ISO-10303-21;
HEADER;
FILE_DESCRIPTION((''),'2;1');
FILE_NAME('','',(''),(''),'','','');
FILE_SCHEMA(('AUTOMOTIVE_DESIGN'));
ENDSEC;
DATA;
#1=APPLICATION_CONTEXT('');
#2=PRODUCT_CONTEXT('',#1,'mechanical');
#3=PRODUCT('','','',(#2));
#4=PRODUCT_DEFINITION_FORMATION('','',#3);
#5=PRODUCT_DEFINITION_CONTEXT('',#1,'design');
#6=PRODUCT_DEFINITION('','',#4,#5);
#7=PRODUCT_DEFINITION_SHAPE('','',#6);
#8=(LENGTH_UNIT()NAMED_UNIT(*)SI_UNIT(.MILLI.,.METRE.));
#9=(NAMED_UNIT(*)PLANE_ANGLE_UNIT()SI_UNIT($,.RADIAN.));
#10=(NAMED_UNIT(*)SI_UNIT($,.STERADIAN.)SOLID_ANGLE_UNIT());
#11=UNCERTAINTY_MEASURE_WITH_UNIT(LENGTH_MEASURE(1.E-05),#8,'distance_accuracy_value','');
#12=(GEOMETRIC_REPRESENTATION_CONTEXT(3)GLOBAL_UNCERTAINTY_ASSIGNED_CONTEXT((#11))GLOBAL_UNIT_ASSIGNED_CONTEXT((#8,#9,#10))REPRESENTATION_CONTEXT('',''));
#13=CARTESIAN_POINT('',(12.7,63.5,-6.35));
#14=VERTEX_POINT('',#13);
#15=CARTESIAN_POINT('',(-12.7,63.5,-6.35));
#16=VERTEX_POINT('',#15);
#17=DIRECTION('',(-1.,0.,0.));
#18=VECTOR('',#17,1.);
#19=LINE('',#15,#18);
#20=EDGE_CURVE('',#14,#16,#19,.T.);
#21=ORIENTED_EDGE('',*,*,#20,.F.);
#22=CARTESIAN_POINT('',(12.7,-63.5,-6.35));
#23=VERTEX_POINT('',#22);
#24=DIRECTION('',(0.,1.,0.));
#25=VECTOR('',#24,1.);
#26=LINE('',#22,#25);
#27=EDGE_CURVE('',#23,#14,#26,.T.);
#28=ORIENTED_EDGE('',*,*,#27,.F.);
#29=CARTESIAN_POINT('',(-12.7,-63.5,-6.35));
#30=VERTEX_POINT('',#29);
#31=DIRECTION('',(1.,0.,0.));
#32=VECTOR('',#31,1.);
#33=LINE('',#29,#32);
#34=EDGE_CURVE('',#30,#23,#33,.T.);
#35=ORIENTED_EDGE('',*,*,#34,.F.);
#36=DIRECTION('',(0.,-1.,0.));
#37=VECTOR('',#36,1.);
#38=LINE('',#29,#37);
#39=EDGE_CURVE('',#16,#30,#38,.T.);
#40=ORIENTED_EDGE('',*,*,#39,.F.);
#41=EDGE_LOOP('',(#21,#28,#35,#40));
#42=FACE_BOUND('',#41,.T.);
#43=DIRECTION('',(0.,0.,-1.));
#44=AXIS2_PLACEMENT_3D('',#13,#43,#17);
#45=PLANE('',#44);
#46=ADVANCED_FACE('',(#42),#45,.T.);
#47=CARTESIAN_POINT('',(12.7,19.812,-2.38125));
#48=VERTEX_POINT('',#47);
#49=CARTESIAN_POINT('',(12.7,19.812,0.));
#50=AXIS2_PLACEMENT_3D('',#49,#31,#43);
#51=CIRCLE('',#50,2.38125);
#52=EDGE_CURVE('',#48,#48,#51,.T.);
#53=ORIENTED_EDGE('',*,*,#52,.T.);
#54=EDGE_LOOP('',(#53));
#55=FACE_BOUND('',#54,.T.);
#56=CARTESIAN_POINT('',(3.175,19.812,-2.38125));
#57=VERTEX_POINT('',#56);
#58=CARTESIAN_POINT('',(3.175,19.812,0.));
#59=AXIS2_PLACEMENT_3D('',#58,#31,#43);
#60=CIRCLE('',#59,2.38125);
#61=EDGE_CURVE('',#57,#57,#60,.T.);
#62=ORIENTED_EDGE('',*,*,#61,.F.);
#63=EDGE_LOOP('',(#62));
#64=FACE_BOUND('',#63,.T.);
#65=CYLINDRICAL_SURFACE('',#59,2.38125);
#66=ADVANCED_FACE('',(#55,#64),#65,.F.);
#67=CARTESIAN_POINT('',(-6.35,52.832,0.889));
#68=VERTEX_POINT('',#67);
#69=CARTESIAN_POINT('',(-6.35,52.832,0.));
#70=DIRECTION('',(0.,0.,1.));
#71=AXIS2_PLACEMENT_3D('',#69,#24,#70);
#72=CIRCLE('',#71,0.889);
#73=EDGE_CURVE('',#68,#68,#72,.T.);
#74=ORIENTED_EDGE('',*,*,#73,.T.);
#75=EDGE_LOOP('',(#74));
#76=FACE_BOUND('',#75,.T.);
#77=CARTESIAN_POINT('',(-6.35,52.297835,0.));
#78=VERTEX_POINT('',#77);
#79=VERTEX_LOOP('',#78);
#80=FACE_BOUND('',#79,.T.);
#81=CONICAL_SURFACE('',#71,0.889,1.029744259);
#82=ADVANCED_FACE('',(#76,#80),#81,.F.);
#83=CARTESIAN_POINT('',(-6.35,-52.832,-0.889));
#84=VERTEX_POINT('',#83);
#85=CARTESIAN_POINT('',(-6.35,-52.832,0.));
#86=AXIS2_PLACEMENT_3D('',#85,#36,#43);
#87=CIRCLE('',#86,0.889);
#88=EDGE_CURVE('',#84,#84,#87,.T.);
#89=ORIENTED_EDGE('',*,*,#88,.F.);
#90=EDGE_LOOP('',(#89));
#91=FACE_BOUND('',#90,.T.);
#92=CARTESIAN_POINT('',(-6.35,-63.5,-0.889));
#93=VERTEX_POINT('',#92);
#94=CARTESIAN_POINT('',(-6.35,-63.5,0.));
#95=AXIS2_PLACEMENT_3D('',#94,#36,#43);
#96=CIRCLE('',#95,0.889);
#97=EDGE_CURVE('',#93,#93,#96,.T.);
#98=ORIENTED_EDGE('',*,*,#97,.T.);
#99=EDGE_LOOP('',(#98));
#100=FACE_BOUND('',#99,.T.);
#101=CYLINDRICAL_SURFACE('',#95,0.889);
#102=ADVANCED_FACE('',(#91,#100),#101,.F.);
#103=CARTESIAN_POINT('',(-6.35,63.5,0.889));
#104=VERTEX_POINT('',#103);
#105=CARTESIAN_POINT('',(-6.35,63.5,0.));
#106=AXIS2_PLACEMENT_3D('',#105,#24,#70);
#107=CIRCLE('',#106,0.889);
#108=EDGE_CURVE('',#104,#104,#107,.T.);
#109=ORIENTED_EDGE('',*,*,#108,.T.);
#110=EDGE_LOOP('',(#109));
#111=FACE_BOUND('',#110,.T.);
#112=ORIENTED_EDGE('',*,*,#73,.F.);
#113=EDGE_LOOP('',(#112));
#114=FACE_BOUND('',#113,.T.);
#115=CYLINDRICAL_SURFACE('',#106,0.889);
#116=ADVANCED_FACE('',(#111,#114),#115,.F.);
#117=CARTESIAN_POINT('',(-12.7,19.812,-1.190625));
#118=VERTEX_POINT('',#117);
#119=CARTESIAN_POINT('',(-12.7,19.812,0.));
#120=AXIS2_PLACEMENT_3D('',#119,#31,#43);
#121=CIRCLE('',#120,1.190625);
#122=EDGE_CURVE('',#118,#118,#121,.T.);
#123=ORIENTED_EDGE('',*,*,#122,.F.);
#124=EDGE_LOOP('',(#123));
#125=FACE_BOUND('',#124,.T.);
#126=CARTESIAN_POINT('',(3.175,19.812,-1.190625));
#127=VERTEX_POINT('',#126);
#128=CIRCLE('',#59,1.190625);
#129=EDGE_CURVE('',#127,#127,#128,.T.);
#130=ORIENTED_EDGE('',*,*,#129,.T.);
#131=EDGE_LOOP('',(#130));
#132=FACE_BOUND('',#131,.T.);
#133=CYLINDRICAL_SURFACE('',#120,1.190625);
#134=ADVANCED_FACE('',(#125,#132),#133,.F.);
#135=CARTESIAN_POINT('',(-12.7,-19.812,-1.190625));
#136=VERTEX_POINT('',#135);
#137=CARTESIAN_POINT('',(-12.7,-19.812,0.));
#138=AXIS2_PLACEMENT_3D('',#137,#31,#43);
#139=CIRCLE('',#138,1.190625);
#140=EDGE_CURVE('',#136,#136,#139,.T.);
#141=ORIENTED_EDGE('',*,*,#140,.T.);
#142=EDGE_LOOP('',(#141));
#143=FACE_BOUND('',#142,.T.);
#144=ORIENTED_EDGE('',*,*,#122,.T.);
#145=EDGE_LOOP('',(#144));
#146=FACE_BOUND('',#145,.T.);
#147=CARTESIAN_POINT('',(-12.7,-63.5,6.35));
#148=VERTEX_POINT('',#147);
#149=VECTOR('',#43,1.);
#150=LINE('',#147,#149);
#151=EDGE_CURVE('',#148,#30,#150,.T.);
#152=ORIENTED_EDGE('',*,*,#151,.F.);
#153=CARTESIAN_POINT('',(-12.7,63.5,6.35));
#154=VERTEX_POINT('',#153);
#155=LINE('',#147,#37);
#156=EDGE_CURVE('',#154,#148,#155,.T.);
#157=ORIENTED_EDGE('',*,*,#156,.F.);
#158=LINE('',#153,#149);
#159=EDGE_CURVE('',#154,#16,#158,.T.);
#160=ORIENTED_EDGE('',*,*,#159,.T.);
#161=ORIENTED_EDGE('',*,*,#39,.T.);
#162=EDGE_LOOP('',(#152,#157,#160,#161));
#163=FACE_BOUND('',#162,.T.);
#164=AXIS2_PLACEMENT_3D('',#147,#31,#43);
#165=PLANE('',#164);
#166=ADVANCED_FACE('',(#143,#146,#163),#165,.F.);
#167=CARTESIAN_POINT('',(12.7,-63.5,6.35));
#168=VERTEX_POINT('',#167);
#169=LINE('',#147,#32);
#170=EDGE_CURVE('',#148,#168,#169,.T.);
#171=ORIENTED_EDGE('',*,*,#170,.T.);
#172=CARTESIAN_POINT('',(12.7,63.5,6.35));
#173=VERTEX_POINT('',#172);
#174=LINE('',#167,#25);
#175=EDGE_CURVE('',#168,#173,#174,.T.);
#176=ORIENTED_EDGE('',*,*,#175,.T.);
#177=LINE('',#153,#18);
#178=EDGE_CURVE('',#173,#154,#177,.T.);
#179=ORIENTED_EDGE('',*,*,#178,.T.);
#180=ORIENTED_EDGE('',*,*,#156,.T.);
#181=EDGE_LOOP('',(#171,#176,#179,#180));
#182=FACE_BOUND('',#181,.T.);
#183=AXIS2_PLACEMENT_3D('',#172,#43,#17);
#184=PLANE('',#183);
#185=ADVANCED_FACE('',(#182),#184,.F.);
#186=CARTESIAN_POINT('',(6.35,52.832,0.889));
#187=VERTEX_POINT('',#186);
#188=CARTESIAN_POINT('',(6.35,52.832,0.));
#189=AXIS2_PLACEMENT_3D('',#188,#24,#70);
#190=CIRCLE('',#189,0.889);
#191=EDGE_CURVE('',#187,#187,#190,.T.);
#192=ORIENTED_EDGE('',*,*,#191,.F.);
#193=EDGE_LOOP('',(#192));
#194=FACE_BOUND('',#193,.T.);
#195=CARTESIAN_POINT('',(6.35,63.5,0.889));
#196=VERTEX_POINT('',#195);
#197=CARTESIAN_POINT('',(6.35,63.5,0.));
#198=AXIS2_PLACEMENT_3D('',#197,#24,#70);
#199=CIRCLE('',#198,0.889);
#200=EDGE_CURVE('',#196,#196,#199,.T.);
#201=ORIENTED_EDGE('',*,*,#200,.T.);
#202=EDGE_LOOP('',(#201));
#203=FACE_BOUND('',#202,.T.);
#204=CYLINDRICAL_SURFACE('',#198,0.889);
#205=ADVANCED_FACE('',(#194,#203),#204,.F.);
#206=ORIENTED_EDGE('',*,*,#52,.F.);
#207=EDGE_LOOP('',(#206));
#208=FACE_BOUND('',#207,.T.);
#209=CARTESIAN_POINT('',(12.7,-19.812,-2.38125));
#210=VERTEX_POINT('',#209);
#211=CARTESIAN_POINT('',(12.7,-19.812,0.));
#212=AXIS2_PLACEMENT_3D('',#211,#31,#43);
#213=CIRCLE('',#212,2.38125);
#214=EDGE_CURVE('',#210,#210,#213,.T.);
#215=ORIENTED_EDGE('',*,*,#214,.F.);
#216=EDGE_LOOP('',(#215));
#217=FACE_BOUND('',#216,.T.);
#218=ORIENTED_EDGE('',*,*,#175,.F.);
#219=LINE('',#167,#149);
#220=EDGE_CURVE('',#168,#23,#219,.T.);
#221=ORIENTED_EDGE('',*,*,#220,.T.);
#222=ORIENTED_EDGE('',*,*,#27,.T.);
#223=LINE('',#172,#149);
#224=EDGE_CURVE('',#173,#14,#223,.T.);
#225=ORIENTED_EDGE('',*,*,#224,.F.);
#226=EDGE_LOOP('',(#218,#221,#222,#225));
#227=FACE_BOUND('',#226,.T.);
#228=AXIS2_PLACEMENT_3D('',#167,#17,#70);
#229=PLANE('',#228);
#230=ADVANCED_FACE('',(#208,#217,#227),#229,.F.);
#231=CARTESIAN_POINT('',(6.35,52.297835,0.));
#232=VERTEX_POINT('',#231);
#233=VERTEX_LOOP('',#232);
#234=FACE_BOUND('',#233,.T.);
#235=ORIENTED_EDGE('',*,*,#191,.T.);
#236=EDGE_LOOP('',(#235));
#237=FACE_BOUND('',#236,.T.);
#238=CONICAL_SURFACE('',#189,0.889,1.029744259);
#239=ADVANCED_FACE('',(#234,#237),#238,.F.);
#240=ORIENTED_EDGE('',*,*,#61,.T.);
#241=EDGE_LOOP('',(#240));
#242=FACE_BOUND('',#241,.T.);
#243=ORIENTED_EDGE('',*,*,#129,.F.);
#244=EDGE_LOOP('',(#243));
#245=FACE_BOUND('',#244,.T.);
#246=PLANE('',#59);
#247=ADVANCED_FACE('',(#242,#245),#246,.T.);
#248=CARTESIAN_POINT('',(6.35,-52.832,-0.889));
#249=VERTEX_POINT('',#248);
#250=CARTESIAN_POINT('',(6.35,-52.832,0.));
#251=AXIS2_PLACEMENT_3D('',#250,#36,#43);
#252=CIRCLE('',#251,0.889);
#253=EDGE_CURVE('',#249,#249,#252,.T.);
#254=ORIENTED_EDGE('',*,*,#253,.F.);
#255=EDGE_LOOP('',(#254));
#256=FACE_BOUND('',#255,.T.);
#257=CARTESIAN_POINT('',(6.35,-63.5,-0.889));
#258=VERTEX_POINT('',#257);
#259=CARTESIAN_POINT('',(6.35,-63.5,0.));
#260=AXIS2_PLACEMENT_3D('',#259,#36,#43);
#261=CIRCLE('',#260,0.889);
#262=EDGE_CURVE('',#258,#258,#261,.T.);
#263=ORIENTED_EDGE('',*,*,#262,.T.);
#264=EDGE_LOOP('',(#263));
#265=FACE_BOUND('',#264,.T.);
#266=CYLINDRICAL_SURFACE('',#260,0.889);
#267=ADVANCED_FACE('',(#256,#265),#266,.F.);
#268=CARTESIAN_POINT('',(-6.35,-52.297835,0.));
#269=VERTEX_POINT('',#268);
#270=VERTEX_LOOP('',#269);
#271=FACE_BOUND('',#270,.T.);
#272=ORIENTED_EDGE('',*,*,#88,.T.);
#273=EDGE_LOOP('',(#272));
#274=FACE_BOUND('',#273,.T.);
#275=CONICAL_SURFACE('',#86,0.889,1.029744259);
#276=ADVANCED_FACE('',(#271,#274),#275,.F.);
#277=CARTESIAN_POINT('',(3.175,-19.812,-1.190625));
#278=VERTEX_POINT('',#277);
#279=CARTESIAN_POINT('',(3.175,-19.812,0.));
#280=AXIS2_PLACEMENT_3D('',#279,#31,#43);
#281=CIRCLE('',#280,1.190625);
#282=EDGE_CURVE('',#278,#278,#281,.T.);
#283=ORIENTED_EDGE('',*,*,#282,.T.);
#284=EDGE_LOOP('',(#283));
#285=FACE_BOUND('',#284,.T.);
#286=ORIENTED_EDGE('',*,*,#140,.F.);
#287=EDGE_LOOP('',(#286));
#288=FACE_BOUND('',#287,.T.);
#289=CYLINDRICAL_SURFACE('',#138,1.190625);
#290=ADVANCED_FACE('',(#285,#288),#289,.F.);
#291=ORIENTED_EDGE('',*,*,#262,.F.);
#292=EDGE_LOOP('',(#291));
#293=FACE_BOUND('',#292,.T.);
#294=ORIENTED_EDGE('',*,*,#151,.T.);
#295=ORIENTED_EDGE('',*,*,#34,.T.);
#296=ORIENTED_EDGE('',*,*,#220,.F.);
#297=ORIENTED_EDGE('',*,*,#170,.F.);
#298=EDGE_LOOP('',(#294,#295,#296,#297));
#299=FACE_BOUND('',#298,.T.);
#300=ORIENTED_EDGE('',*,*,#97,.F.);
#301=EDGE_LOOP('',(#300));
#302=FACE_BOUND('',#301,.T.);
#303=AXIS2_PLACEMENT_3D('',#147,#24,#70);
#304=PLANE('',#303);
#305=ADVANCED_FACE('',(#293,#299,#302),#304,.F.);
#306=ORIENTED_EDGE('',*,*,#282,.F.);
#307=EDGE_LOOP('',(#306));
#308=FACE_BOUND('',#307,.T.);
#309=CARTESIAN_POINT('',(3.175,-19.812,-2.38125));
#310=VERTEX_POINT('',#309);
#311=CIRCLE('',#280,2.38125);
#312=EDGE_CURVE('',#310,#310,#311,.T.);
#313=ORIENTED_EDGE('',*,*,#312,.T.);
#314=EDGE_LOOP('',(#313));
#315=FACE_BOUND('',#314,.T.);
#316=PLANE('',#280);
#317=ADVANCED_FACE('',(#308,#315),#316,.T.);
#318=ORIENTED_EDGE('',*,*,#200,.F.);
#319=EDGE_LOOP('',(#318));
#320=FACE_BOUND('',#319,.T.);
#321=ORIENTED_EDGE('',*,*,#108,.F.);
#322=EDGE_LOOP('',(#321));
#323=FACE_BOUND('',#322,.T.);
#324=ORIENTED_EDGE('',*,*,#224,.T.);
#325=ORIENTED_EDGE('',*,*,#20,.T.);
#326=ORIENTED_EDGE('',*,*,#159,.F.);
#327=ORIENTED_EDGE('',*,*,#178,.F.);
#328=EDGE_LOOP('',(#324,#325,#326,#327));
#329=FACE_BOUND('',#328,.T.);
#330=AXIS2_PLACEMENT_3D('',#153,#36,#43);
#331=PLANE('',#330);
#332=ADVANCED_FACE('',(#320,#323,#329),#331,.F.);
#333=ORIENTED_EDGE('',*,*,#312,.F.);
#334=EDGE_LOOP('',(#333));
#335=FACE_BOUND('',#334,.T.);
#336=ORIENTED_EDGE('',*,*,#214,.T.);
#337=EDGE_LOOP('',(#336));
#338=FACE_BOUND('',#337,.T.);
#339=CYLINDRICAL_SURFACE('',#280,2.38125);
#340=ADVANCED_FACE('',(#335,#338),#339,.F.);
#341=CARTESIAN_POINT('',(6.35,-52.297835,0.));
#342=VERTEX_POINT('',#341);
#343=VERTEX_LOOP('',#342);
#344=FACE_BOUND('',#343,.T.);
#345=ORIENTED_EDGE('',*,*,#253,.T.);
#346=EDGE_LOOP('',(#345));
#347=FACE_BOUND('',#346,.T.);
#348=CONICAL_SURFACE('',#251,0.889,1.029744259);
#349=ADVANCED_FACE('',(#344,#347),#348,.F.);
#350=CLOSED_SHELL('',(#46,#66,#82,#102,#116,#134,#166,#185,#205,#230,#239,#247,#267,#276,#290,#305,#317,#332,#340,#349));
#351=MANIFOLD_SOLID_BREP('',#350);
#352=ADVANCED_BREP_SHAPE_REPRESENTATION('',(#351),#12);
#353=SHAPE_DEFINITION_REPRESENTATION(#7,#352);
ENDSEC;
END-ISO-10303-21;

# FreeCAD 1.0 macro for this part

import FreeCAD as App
import Part
import Sketcher
Q = App.Units.Quantity

doc = App.newDocument("Part")
body = doc.addObject("PartDesign::Body", "Body")

# Sketch on XY plane
sketch1 = body.newObject("Sketcher::SketchObject", "Sketch")
sketch1.AttachmentSupport = (doc.getObject("XY_Plane"), [""])
sketch1.MapMode = "FlatFace"
sketch1.addGeometry([
    Part.LineSegment(App.Vector(-13, 64, 0), App.Vector(-13, -64, 0)),
    Part.LineSegment(App.Vector(-13, -64, 0), App.Vector(13, -64, 0)),
    Part.LineSegment(App.Vector(13, -64, 0), App.Vector(13, 64, 0)),
    Part.LineSegment(App.Vector(13, 64, 0), App.Vector(-13, 64, 0)),
], False)
sketch1.addConstraint([
    Sketcher.Constraint("Coincident", 0, 2, 1, 1),
    Sketcher.Constraint("Coincident", 1, 2, 2, 1),
    Sketcher.Constraint("Coincident", 2, 2, 3, 1),
    Sketcher.Constraint("Coincident", 3, 2, 0, 1),
    Sketcher.Constraint("Vertical", 0),
    Sketcher.Constraint("Horizontal", 1),
    Sketcher.Constraint("Vertical", 2),
    Sketcher.Constraint("Horizontal", 3),
    Sketcher.Constraint("Symmetric", 0, 2, 2, 2, -1, 1),
    Sketcher.Constraint("DistanceX", 1, 1, 1, 2, Q("1 in")),
    Sketcher.Constraint("DistanceY", 0, 2, 0, 1, Q("5 in")),
])
pad1 = body.newObject("PartDesign::Pad", "Pad")
pad1.Profile = sketch1
pad1.Length = Q("0.5 in")
pad1.Midplane = True

# Sketch on YZ plane
sketch2 = body.newObject("Sketcher::SketchObject", "Sketch001")
sketch2.AttachmentSupport = (doc.getObject("YZ_Plane"), [""])
sketch2.MapMode = "FlatFace"
sketch2.AttachmentOffset = App.Placement(App.Vector(0, 0, 0.5 * 25.4), App.Rotation())
sketch2.addGeometry([
    Part.Circle(App.Vector(19.8, 0, 0), App.Vector(0, 0, 1), 1.2),
    Part.Circle(App.Vector(-19.8, 0, 0), App.Vector(0, 0, 1), 1.2),
], False)
sketch2.addConstraint([
    Sketcher.Constraint("Equal", 0, 1),
    Sketcher.Constraint("Symmetric", 0, 3, 1, 3, -1, 1),
    Sketcher.Constraint("PointOnObject", 0, 3, -1),
    Sketcher.Constraint("Diameter", 0, Q("0.09375 in")),
    Sketcher.Constraint("DistanceX", -1, 1, 0, 3, Q("0.78 in")),
])
pocket1 = body.newObject("PartDesign::Pocket", "Pocket")
pocket1.Profile = sketch2
pocket1.Type = "ThroughAll"

# Sketch on YZ plane
sketch3 = body.newObject("Sketcher::SketchObject", "Sketch002")
sketch3.AttachmentSupport = (doc.getObject("YZ_Plane"), [""])
sketch3.MapMode = "FlatFace"
sketch3.AttachmentOffset = App.Placement(App.Vector(0, 0, 0.5 * 25.4), App.Rotation())
sketch3.addGeometry([
    Part.Circle(App.Vector(19.8, 0, 0), App.Vector(0, 0, 1), 2.4),
    Part.Circle(App.Vector(19.8, 0, 0), App.Vector(0, 0, 1), 1.2),
    Part.Circle(App.Vector(-19.8, 0, 0), App.Vector(0, 0, 1), 2.4),
    Part.Circle(App.Vector(-19.8, 0, 0), App.Vector(0, 0, 1), 1.2),
], False)
sketch3.addConstraint([
    Sketcher.Constraint("Coincident", 1, 3, 0, 3),
    Sketcher.Constraint("Coincident", 3, 3, 2, 3),
    Sketcher.Constraint("Equal", 0, 2),
    Sketcher.Constraint("Equal", 1, 3),
    Sketcher.Constraint("Symmetric", 0, 3, 2, 3, -1, 1),
    Sketcher.Constraint("PointOnObject", 0, 3, -1),
    Sketcher.Constraint("Diameter", 0, Q("0.1875 in")),
    Sketcher.Constraint("Diameter", 1, Q("0.09375 in")),
    Sketcher.Constraint("DistanceX", -1, 1, 0, 3, Q("0.78 in")),
])
pocket2 = body.newObject("PartDesign::Pocket", "Pocket001")
pocket2.Profile = sketch3
pocket2.Length = Q("0.375 in")

# Sketch on XZ plane
sketch4 = body.newObject("Sketcher::SketchObject", "Sketch003")
sketch4.AttachmentSupport = (doc.getObject("XZ_Plane"), [""])
sketch4.MapMode = "FlatFace"
sketch4.AttachmentOffset = App.Placement(App.Vector(0, 0, -2.5 * 25.4), App.Rotation())
sketch4.addGeometry([
    Part.Circle(App.Vector(-6.3, 0, 0), App.Vector(0, 0, 1), 0.9),
    Part.Circle(App.Vector(6.3, 0, 0), App.Vector(0, 0, 1), 0.9),
], False)
sketch4.addConstraint([
    Sketcher.Constraint("Equal", 0, 1),
    Sketcher.Constraint("Symmetric", 0, 3, 1, 3, -1, 1),
    Sketcher.Constraint("PointOnObject", 0, 3, -1),
    Sketcher.Constraint("Diameter", 0, Q("0.07 in")),
    Sketcher.Constraint("DistanceX", 0, 3, 1, 3, Q("0.5 in")),
])
doc.recompute()
hole = body.newObject("PartDesign::Hole", "Hole")
hole.Profile = sketch4
hole.ThreadType = "None"
hole.Diameter = Q("0.07 in")
hole.DepthType = "Dimension"
hole.Depth = Q("0.42 in")
hole.DrillPoint = "Angled"
hole.DrillPointAngle = 118
hole.Reversed = True

# Sketch on XZ plane
sketch5 = body.newObject("Sketcher::SketchObject", "Sketch004")
sketch5.AttachmentSupport = (doc.getObject("XZ_Plane"), [""])
sketch5.MapMode = "FlatFace"
sketch5.AttachmentOffset = App.Placement(App.Vector(0, 0, 2.5 * 25.4), App.Rotation())
sketch5.addGeometry([
    Part.Circle(App.Vector(6.3, 0, 0), App.Vector(0, 0, 1), 0.9),
    Part.Circle(App.Vector(-6.3, 0, 0), App.Vector(0, 0, 1), 0.9),
], False)
sketch5.addConstraint([
    Sketcher.Constraint("Equal", 0, 1),
    Sketcher.Constraint("Symmetric", 0, 3, 1, 3, -1, 1),
    Sketcher.Constraint("PointOnObject", 0, 3, -1),
    Sketcher.Constraint("Diameter", 0, Q("0.07 in")),
    Sketcher.Constraint("DistanceX", 1, 3, 0, 3, Q("0.5 in")),
])
doc.recompute()
hole2 = body.newObject("PartDesign::Hole", "Hole001")
hole2.Profile = sketch5
hole2.ThreadType = "None"
hole2.Diameter = Q("0.07 in")
hole2.DepthType = "Dimension"
hole2.Depth = Q("0.42 in")
hole2.DrillPoint = "Angled"
hole2.DrillPointAngle = 118

doc.recompute()
